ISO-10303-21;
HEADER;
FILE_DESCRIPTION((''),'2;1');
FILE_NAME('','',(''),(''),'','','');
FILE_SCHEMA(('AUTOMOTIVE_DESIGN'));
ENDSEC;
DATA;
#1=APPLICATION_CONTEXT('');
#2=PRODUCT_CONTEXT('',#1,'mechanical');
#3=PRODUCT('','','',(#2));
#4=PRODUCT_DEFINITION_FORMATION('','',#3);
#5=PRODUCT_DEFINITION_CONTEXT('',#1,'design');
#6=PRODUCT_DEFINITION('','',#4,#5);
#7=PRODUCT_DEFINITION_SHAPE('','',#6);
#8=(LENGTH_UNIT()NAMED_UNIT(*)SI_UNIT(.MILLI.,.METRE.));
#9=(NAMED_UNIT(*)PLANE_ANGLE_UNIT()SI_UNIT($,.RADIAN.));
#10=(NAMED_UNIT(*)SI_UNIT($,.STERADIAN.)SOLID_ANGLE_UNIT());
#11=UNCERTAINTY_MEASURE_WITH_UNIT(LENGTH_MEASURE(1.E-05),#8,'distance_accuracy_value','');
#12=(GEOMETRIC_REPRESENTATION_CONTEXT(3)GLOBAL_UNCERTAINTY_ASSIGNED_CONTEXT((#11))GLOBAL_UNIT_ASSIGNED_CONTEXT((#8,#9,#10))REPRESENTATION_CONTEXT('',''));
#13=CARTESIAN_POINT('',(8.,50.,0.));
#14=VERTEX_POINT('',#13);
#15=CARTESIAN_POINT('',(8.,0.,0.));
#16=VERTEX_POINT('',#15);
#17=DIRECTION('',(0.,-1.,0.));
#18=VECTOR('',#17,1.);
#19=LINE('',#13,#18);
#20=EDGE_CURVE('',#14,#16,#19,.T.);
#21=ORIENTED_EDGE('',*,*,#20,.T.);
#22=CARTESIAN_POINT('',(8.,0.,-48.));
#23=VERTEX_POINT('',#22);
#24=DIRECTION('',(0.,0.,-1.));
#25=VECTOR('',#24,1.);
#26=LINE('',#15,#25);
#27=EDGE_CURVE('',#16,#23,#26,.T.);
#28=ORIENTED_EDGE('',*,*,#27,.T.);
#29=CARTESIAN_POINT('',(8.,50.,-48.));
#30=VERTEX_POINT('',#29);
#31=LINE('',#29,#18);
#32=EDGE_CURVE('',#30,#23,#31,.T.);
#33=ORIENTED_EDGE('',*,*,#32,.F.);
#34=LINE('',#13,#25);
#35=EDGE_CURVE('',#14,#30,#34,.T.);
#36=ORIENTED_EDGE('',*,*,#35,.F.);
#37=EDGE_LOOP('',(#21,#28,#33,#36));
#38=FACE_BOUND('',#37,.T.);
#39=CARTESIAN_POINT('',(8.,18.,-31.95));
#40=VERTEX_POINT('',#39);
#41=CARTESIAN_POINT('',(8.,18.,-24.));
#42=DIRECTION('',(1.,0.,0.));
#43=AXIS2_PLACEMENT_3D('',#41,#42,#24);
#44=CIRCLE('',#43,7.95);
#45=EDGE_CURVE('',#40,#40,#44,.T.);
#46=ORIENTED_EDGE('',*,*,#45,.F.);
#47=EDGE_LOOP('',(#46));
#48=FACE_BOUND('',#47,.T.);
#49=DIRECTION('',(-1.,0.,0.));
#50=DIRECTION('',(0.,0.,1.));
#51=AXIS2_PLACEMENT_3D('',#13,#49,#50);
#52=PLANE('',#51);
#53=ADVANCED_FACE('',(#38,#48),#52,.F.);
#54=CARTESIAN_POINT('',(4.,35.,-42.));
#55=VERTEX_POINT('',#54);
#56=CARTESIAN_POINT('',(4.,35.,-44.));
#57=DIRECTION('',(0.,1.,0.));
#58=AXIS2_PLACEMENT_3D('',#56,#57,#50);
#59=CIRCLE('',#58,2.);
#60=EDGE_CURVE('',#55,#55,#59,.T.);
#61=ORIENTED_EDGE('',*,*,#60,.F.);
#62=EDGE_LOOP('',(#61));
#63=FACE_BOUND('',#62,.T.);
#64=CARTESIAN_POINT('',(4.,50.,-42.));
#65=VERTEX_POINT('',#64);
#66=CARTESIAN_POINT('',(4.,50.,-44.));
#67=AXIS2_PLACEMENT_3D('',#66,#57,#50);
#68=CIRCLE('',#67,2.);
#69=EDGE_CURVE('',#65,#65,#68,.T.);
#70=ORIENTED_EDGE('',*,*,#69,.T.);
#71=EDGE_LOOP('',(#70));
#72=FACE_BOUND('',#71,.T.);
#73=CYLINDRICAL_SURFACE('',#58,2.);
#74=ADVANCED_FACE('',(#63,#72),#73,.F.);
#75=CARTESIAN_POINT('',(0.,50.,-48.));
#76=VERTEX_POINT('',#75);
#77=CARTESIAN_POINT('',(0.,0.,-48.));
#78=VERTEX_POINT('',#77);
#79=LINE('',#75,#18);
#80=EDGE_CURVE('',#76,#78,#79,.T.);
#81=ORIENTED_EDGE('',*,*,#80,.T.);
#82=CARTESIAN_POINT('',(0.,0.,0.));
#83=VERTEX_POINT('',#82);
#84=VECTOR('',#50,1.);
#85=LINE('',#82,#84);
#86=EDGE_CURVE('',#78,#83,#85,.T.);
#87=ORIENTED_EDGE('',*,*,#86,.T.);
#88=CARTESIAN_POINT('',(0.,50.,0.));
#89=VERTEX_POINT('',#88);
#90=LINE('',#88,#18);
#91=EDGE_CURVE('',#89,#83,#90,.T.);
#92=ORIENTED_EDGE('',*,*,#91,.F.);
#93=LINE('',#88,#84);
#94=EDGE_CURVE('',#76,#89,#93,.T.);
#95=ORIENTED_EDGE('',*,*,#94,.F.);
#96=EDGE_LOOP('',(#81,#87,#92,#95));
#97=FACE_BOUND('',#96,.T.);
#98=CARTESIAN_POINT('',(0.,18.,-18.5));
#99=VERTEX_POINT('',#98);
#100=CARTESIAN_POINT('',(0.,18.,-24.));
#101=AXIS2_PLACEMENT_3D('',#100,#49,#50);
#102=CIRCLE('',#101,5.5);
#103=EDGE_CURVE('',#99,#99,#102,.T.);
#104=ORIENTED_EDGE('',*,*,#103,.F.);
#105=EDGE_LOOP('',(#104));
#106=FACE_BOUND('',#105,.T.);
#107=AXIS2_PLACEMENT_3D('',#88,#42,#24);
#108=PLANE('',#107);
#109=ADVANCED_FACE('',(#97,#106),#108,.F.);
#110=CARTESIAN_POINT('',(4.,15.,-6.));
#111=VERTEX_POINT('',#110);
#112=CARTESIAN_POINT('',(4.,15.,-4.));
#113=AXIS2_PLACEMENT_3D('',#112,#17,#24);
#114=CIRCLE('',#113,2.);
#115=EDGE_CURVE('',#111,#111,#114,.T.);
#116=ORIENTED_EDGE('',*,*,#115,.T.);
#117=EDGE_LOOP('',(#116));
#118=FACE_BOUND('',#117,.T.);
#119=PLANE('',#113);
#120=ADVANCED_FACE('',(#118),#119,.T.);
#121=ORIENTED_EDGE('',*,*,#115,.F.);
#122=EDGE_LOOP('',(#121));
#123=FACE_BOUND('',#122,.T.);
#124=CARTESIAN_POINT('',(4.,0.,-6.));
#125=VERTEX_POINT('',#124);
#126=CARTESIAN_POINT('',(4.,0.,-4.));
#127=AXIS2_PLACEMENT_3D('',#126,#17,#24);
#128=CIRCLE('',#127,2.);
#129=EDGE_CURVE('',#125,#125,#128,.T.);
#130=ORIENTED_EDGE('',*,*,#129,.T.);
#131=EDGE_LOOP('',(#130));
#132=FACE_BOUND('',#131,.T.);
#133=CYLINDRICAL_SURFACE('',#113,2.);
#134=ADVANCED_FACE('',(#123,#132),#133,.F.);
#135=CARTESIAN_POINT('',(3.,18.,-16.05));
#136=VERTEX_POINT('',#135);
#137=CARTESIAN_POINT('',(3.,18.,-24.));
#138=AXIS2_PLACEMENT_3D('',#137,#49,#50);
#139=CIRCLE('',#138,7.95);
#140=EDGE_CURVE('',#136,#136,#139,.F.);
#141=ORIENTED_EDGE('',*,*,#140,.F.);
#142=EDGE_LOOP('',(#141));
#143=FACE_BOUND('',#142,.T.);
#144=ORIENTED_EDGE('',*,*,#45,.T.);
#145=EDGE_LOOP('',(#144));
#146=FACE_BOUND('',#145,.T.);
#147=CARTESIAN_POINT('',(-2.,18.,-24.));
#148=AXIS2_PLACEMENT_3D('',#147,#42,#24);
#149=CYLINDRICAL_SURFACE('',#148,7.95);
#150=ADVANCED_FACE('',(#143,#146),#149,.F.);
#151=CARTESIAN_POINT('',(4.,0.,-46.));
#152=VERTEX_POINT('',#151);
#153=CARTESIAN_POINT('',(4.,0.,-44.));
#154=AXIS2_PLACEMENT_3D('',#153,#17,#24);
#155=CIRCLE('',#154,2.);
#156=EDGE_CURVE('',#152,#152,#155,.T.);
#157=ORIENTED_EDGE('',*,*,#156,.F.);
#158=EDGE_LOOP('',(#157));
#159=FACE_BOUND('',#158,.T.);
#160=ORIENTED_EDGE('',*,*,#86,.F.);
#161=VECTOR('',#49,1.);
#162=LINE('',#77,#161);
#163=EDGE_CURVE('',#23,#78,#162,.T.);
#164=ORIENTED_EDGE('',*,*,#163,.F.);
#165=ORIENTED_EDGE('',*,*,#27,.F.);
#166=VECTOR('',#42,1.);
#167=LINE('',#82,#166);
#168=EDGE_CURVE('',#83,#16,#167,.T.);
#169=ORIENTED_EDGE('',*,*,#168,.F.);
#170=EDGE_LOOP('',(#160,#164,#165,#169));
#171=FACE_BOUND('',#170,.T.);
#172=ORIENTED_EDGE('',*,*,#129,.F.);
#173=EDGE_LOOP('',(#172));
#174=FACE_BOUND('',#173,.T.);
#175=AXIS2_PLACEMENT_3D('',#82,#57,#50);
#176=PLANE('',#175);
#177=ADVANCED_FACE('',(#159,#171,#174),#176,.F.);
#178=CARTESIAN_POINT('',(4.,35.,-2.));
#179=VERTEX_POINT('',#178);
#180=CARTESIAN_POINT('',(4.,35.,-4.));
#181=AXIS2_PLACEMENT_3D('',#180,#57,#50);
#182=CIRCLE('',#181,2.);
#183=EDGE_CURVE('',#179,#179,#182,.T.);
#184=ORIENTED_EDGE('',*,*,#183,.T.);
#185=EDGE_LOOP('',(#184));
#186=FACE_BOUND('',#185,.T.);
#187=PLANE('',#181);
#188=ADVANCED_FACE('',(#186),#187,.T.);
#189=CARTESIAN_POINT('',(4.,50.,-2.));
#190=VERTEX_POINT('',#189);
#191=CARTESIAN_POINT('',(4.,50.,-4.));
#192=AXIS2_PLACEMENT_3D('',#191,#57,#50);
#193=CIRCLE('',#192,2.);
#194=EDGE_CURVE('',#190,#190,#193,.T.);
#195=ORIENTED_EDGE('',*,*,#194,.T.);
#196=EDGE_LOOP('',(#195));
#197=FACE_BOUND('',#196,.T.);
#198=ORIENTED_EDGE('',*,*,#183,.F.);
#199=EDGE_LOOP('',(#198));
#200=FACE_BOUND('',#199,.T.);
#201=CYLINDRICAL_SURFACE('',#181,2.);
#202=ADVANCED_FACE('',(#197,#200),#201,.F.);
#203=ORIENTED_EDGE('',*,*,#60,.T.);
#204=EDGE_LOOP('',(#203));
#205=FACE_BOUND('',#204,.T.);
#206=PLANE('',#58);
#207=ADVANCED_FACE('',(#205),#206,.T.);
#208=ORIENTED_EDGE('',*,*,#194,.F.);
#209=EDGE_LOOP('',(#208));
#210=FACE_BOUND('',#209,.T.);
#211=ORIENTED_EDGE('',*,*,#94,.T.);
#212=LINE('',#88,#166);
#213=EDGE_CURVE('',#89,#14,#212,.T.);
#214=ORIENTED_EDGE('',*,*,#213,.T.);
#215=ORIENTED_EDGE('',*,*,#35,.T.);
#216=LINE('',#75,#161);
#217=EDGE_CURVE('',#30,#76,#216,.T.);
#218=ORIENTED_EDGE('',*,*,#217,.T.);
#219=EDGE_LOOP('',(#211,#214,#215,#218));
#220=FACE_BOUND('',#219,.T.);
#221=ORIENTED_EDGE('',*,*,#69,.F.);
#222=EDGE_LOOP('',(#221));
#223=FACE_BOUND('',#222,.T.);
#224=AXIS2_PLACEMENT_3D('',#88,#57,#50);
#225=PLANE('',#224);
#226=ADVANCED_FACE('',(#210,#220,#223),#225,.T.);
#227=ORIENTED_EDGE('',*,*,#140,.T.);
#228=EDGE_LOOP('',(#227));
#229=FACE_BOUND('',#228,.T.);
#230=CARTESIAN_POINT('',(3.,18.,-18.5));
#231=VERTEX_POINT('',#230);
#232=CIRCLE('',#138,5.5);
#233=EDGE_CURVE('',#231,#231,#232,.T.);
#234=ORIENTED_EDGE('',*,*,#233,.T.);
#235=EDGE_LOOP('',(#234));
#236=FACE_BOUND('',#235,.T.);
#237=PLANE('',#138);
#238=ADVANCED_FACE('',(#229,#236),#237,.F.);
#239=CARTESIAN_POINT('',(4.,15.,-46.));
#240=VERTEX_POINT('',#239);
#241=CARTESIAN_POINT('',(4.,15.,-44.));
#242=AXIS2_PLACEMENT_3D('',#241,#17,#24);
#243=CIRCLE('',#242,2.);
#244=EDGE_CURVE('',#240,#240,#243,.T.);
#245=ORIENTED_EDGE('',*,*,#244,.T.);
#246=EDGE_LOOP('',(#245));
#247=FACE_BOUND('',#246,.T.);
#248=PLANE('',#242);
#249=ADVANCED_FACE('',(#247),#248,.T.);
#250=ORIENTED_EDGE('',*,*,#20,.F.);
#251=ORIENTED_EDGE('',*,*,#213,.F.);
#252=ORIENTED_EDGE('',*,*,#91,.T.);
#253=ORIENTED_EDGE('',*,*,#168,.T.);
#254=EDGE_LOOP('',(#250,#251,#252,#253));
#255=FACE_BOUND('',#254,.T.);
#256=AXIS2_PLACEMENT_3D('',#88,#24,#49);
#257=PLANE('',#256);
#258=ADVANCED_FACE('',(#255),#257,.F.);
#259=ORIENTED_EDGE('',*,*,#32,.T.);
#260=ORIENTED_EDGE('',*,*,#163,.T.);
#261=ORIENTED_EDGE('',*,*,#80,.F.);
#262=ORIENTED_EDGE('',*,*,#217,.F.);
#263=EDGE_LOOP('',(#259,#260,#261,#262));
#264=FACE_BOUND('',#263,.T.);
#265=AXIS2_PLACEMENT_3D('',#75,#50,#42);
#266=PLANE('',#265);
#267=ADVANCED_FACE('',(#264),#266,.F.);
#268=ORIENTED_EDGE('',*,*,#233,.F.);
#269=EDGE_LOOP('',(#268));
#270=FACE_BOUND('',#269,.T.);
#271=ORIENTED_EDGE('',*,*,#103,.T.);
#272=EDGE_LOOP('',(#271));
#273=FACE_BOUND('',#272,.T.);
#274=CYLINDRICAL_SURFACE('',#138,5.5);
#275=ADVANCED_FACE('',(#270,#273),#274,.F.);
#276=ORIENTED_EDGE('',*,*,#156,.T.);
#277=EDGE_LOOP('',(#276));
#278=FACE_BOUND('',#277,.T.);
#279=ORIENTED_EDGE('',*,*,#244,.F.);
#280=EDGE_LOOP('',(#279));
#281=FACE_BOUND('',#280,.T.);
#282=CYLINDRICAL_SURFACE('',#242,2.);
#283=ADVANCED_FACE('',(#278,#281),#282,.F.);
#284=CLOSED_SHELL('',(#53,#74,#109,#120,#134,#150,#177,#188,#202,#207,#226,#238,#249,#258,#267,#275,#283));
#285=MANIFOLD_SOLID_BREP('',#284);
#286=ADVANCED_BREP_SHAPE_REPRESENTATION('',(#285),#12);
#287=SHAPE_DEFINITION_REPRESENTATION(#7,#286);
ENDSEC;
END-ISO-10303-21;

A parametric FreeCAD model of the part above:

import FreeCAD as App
import Part
import Sketcher

V = App.Vector

doc = App.newDocument("Part")
body = doc.addObject("PartDesign::Body", "Body")

sketch1 = body.newObject("Sketcher::SketchObject", "Sketch")
sketch1.AttachmentSupport = (doc.getObject("XZ_Plane"), [""])
sketch1.MapMode = "FlatFace"
sketch1.addGeometry(Part.LineSegment(V(0, -48, 0), V(0, 0, 0)), False)
sketch1.addGeometry(Part.LineSegment(V(0, 0, 0), V(8, 0, 0)), False)
sketch1.addGeometry(Part.LineSegment(V(8, 0, 0), V(8, -48, 0)), False)
sketch1.addGeometry(Part.LineSegment(V(8, -48, 0), V(0, -48, 0)), False)
sketch1.addConstraint(Sketcher.Constraint("Coincident", 0, 2, 1, 1))
sketch1.addConstraint(Sketcher.Constraint("Coincident", 1, 2, 2, 1))
sketch1.addConstraint(Sketcher.Constraint("Coincident", 2, 2, 3, 1))
sketch1.addConstraint(Sketcher.Constraint("Coincident", 3, 2, 0, 1))
sketch1.addConstraint(Sketcher.Constraint("Vertical", 0))
sketch1.addConstraint(Sketcher.Constraint("Horizontal", 1))
sketch1.addConstraint(Sketcher.Constraint("Vertical", 2))
sketch1.addConstraint(Sketcher.Constraint("Horizontal", 3))
sketch1.addConstraint(Sketcher.Constraint("Coincident", 0, 2, -1, 1))
sketch1.addConstraint(Sketcher.Constraint("DistanceX", 1, 1, 1, 2, 8.0))
sketch1.addConstraint(Sketcher.Constraint("DistanceY", 0, 1, 0, 2, 48.0))
pad1 = body.newObject("PartDesign::Pad", "Pad")
pad1.Profile = sketch1
pad1.Length = 50
pad1.Reversed = True

sketch2 = body.newObject("Sketcher::SketchObject", "Sketch001")
sketch2.AttachmentSupport = (doc.getObject("YZ_Plane"), [""])
sketch2.MapMode = "FlatFace"
sketch2.AttachmentOffset = App.Placement(V(0, 0, 8), App.Rotation())
sketch2.addGeometry(Part.Circle(V(18, -24, 0), V(0, 0, 1), 7.95), False)
sketch2.addConstraint(Sketcher.Constraint("Diameter", 0, 15.9))
sketch2.addConstraint(Sketcher.Constraint("DistanceX", -1, 1, 0, 3, 18.0))
sketch2.addConstraint(Sketcher.Constraint("DistanceY", 0, 3, -1, 1, 24.0))
pocket1 = body.newObject("PartDesign::Pocket", "Pocket")
pocket1.Profile = sketch2
pocket1.Length = 10

sketch3 = body.newObject("Sketcher::SketchObject", "Sketch002")
sketch3.AttachmentSupport = (doc.getObject("YZ_Plane"), [""])
sketch3.MapMode = "FlatFace"
sketch3.addGeometry(Part.Circle(V(18, -24, 0), V(0, 0, 1), 8.2), False)
sketch3.addGeometry(Part.Circle(V(18, -24, 0), V(0, 0, 1), 5.5), False)
sketch3.addConstraint(Sketcher.Constraint("Coincident", 1, 3, 0, 3))
sketch3.addConstraint(Sketcher.Constraint("Diameter", 1, 11.0))
sketch3.addConstraint(Sketcher.Constraint("Diameter", 0, 16.4))
sketch3.addConstraint(Sketcher.Constraint("DistanceX", -1, 1, 0, 3, 18.0))
sketch3.addConstraint(Sketcher.Constraint("DistanceY", 0, 3, -1, 1, 24.0))
pad2 = body.newObject("PartDesign::Pad", "Pad001")
pad2.Profile = sketch3
pad2.Length = 3

sketch4 = body.newObject("Sketcher::SketchObject", "Sketch003")
sketch4.AttachmentSupport = (doc.getObject("XZ_Plane"), [""])
sketch4.MapMode = "FlatFace"
sketch4.addGeometry(Part.Circle(V(4, -44, 0), V(0, 0, 1), 2), False)
sketch4.addGeometry(Part.Circle(V(4, -4, 0), V(0, 0, 1), 2), False)
sketch4.addConstraint(Sketcher.Constraint("Equal", 0, 1))
sketch4.addConstraint(Sketcher.Constraint("Vertical", 0, 3, 1, 3))
sketch4.addConstraint(Sketcher.Constraint("Diameter", 0, 4.0))
sketch4.addConstraint(Sketcher.Constraint("DistanceX", -1, 1, 0, 3, 4.0))
sketch4.addConstraint(Sketcher.Constraint("DistanceY", 0, 3, -1, 1, 44.0))
sketch4.addConstraint(Sketcher.Constraint("DistanceY", 1, 3, -1, 1, 4.0))
pocket2 = body.newObject("PartDesign::Pocket", "Pocket001")
pocket2.Profile = sketch4
pocket2.Length = 15

sketch5 = body.newObject("Sketcher::SketchObject", "Sketch004")
sketch5.AttachmentSupport = (doc.getObject("XZ_Plane"), [""])
sketch5.MapMode = "FlatFace"
sketch5.AttachmentOffset = App.Placement(V(0, 0, -35), App.Rotation())
sketch5.addGeometry(Part.Circle(V(4, -44, 0), V(0, 0, 1), 2), False)
sketch5.addGeometry(Part.Circle(V(4, -4, 0), V(0, 0, 1), 2), False)
sketch5.addConstraint(Sketcher.Constraint("Equal", 0, 1))
sketch5.addConstraint(Sketcher.Constraint("Vertical", 0, 3, 1, 3))
sketch5.addConstraint(Sketcher.Constraint("Diameter", 0, 4.0))
sketch5.addConstraint(Sketcher.Constraint("DistanceX", -1, 1, 0, 3, 4.0))
sketch5.addConstraint(Sketcher.Constraint("DistanceY", 0, 3, -1, 1, 44.0))
sketch5.addConstraint(Sketcher.Constraint("DistanceY", 1, 3, -1, 1, 4.0))
pocket3 = body.newObject("PartDesign::Pocket", "Pocket002")
pocket3.Profile = sketch5
pocket3.Length = 15

doc.recompute()
